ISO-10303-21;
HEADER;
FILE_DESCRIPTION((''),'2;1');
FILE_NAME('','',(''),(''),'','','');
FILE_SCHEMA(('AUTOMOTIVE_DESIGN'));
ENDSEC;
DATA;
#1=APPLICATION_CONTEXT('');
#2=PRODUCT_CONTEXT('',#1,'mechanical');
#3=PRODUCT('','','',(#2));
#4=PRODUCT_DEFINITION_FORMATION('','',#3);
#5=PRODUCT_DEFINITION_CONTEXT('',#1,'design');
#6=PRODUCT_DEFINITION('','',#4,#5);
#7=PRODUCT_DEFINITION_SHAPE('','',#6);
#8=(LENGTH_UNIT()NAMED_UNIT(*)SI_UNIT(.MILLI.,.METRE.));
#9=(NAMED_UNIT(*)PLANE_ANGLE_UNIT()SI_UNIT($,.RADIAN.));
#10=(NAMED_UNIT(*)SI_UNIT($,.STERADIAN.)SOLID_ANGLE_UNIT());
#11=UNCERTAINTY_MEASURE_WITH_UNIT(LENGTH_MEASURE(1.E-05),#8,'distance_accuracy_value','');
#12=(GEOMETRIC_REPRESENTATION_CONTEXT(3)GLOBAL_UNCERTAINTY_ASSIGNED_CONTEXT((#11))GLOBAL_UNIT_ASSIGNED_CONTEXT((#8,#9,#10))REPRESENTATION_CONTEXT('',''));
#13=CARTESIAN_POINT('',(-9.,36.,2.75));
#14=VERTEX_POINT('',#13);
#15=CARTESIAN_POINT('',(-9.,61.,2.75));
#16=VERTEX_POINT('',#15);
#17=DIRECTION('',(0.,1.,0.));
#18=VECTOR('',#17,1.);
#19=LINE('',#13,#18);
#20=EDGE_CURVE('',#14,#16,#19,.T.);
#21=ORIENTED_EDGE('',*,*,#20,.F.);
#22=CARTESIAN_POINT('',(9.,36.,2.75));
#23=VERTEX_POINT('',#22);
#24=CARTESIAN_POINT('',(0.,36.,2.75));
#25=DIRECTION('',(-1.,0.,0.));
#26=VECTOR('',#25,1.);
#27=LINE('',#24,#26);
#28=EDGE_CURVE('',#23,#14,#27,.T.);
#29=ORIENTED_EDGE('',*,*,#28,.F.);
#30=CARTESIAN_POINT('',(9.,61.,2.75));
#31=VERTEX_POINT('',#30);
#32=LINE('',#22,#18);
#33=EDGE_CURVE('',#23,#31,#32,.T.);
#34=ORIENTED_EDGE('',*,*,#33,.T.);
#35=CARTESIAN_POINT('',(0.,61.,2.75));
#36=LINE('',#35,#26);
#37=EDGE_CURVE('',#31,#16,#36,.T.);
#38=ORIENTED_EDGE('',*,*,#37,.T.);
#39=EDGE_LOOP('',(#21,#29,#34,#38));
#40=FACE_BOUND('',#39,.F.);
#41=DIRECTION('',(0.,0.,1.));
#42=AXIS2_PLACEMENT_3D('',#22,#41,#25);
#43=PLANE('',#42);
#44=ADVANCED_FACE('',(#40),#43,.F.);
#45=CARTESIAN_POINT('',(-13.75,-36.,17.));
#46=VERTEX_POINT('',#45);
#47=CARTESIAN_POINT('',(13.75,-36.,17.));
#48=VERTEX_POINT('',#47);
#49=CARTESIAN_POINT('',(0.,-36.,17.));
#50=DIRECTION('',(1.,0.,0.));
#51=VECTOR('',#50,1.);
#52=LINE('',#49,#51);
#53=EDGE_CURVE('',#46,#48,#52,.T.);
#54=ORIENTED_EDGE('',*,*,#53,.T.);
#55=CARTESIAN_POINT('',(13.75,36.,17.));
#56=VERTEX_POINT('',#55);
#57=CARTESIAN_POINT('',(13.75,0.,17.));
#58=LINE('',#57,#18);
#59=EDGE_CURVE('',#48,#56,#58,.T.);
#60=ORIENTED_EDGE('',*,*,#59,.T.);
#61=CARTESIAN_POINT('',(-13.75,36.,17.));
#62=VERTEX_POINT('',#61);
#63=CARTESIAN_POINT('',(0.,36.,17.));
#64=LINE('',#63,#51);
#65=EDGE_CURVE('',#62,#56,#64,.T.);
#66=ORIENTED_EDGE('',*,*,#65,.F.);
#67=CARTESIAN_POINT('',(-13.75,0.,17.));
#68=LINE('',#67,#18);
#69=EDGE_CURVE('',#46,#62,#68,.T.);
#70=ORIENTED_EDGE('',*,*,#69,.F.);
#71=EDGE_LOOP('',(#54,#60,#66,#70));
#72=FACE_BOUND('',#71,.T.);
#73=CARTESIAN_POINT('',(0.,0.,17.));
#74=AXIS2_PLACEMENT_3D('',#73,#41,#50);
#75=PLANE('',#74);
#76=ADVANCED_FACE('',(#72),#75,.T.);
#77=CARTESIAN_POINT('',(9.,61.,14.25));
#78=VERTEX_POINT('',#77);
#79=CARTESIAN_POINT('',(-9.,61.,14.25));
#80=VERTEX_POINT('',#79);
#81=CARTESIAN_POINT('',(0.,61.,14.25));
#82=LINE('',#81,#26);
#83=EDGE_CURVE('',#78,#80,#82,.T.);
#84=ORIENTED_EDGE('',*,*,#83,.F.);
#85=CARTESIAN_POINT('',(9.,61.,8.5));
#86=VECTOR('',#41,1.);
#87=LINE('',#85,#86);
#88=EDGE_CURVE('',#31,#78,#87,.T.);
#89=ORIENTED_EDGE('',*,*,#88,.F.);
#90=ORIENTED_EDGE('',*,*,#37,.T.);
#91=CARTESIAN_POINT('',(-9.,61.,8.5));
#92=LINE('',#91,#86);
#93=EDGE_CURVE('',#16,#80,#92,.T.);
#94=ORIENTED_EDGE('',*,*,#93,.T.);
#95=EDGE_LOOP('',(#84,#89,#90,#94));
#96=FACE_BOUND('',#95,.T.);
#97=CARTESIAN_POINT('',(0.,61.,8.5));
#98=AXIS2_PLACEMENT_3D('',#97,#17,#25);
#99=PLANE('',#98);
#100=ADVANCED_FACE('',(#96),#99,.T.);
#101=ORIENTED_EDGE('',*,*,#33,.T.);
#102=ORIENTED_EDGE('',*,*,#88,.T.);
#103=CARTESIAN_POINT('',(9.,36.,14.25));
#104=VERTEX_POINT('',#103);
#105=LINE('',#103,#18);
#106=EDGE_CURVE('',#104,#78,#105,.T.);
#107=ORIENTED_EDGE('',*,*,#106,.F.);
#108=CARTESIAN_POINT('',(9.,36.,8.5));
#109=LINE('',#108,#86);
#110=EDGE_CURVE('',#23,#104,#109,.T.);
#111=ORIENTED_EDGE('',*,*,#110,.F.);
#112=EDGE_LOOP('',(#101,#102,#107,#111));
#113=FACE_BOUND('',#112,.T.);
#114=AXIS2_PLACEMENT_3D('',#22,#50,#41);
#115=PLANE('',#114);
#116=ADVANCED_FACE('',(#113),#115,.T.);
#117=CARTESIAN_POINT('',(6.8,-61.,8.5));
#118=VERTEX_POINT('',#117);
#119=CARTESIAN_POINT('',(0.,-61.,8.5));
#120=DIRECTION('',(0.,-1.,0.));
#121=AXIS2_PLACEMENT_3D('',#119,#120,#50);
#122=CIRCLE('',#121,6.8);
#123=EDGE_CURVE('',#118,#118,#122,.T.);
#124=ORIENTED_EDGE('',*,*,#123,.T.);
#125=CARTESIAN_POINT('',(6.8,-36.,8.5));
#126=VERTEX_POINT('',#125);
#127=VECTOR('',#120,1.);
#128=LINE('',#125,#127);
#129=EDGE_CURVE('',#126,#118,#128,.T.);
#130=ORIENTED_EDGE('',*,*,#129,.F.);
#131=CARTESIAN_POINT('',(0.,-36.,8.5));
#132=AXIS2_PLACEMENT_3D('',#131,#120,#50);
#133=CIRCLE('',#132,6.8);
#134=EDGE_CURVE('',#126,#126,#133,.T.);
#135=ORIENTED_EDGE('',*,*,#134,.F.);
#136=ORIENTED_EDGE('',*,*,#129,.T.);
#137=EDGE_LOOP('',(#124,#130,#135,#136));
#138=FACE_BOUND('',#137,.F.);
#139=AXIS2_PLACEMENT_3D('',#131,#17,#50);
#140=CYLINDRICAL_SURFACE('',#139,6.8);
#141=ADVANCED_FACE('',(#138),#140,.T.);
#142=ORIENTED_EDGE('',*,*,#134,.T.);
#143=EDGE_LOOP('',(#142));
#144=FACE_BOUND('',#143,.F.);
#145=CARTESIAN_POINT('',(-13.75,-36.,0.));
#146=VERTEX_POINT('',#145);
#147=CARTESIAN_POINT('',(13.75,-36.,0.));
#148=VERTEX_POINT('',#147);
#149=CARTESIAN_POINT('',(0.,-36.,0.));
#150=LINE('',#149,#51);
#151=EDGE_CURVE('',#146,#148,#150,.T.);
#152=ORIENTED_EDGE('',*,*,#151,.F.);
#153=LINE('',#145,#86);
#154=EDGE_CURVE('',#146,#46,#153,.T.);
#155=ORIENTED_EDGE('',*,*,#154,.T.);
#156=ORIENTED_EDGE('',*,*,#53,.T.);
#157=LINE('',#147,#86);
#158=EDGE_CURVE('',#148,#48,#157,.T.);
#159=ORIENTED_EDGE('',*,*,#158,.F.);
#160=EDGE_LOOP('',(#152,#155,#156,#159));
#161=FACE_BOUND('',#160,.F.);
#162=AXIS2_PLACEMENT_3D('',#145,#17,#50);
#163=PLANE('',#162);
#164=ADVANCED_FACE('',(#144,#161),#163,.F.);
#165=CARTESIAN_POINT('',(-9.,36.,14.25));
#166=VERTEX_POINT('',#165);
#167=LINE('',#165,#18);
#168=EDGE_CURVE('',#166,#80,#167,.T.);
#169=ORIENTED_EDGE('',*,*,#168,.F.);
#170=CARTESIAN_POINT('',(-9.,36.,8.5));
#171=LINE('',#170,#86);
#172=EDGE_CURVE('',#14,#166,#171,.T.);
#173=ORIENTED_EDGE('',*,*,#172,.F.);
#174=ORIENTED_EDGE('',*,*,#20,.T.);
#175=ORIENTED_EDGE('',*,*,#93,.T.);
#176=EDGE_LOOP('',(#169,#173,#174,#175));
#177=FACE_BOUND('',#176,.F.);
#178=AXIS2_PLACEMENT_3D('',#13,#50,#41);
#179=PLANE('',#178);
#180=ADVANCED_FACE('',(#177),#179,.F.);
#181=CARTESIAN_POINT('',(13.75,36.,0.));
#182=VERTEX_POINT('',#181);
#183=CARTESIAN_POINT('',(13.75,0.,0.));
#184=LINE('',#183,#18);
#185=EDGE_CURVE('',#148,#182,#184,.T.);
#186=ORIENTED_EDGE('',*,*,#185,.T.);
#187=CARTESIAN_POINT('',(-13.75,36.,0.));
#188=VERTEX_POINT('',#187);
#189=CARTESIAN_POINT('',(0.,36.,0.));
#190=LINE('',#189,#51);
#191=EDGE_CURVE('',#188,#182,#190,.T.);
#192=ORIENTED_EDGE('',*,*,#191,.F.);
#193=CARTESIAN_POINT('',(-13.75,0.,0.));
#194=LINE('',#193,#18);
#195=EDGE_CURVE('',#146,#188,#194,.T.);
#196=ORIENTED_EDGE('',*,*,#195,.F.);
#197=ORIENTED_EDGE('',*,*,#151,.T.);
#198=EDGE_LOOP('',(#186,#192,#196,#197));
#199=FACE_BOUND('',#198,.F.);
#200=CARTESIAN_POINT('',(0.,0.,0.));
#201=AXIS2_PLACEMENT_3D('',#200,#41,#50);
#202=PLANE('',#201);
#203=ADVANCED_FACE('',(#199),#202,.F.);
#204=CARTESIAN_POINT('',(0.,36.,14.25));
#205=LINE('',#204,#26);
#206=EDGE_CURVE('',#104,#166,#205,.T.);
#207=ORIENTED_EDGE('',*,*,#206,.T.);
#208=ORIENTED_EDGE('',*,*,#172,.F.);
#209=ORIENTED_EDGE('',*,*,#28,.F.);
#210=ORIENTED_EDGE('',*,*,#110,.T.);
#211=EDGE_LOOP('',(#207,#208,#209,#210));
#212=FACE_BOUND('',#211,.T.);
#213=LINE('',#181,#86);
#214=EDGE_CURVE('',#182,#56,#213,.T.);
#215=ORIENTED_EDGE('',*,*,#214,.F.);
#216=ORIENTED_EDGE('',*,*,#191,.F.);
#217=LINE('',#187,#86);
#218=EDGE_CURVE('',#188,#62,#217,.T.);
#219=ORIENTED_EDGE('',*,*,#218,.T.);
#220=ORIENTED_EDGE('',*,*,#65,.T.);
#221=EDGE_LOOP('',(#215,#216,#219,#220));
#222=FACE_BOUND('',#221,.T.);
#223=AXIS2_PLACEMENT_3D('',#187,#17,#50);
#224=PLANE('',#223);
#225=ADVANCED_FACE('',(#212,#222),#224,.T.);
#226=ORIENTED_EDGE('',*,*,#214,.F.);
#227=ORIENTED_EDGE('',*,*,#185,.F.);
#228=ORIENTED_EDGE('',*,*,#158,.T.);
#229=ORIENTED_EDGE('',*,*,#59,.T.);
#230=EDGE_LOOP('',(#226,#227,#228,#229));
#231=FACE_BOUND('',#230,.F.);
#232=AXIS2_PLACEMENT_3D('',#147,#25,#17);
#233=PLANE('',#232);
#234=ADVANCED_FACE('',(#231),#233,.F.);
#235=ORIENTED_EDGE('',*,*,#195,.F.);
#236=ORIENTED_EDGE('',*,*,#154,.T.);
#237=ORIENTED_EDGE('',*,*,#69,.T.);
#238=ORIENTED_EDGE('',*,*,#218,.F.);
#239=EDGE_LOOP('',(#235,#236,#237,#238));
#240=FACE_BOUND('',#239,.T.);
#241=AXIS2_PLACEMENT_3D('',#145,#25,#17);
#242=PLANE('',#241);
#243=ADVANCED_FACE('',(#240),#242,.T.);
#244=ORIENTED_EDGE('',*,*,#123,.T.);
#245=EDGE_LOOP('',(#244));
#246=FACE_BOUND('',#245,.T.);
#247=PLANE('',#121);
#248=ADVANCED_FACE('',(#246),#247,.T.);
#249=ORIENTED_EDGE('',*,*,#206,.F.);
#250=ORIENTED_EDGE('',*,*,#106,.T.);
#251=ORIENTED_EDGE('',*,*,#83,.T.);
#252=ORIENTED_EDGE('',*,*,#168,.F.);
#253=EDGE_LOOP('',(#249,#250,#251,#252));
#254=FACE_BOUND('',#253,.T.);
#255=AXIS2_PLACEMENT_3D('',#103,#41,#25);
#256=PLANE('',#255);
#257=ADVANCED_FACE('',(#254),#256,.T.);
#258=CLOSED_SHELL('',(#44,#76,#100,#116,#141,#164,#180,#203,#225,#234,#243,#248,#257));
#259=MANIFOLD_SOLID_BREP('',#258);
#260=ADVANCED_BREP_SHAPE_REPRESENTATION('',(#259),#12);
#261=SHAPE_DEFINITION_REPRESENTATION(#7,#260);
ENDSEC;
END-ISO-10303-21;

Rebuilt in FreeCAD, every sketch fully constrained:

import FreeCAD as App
import Part
import Sketcher

V = App.Vector
Q = App.Units.Quantity

doc = App.newDocument("Part")
body = doc.addObject("PartDesign::Body", "Body")

sketch1 = doc.addObject("Sketcher::SketchObject", "Sketch")
body.addObject(sketch1)
sketch1.AttachmentSupport = (doc.XY_Plane, [""])
sketch1.MapMode = "FlatFace"
sketch1.addGeometry(Part.LineSegment(V(-14, 36, 0), V(-14, -36, 0)), False)
sketch1.addGeometry(Part.LineSegment(V(-14, -36, 0), V(14, -36, 0)), False)
sketch1.addGeometry(Part.LineSegment(V(14, -36, 0), V(14, 36, 0)), False)
sketch1.addGeometry(Part.LineSegment(V(14, 36, 0), V(-14, 36, 0)), False)
sketch1.addConstraint(Sketcher.Constraint("Coincident", 0, 2, 1, 1))
sketch1.addConstraint(Sketcher.Constraint("Coincident", 1, 2, 2, 1))
sketch1.addConstraint(Sketcher.Constraint("Coincident", 2, 2, 3, 1))
sketch1.addConstraint(Sketcher.Constraint("Coincident", 3, 2, 0, 1))
sketch1.addConstraint(Sketcher.Constraint("Vertical", 0))
sketch1.addConstraint(Sketcher.Constraint("Horizontal", 1))
sketch1.addConstraint(Sketcher.Constraint("Vertical", 2))
sketch1.addConstraint(Sketcher.Constraint("Horizontal", 3))
sketch1.addConstraint(Sketcher.Constraint("Symmetric", 0, 2, 2, 2, -1, 1))
sketch1.addConstraint(Sketcher.Constraint("DistanceY", 0, 2, 0, 1, Q("72 mm")))
sketch1.addConstraint(Sketcher.Constraint("DistanceX", 1, 1, 1, 2, Q("27.5 mm")))
pad1 = doc.addObject("PartDesign::Pad", "Pad")
body.addObject(pad1)
pad1.Profile = sketch1
pad1.Length = 17

sketch2 = doc.addObject("Sketcher::SketchObject", "Sketch001")
body.addObject(sketch2)
sketch2.AttachmentSupport = (doc.XZ_Plane, [""])
sketch2.MapMode = "FlatFace"
sketch2.AttachmentOffset = App.Placement(V(0, 0, -36), App.Rotation())
sketch2.addGeometry(Part.LineSegment(V(9, 14, 0), V(9, 3, 0)), False)
sketch2.addGeometry(Part.LineSegment(V(9, 3, 0), V(-9, 3, 0)), False)
sketch2.addGeometry(Part.LineSegment(V(-9, 3, 0), V(-9, 14, 0)), False)
sketch2.addGeometry(Part.LineSegment(V(-9, 14, 0), V(9, 14, 0)), False)
sketch2.addConstraint(Sketcher.Constraint("Coincident", 0, 2, 1, 1))
sketch2.addConstraint(Sketcher.Constraint("Coincident", 1, 2, 2, 1))
sketch2.addConstraint(Sketcher.Constraint("Coincident", 2, 2, 3, 1))
sketch2.addConstraint(Sketcher.Constraint("Coincident", 3, 2, 0, 1))
sketch2.addConstraint(Sketcher.Constraint("Vertical", 0))
sketch2.addConstraint(Sketcher.Constraint("Horizontal", 1))
sketch2.addConstraint(Sketcher.Constraint("Vertical", 2))
sketch2.addConstraint(Sketcher.Constraint("Horizontal", 3))
sketch2.addConstraint(Sketcher.Constraint("DistanceX", 1, 2, 1, 1, Q("18 mm")))
sketch2.addConstraint(Sketcher.Constraint("DistanceY", 0, 2, 0, 1, Q("11.5 mm")))
sketch2.addConstraint(Sketcher.Constraint("DistanceX", -1, 1, 0, 2, Q("9 mm")))
sketch2.addConstraint(Sketcher.Constraint("DistanceY", -1, 1, 0, 2, Q("2.75 mm")))
pad2 = doc.addObject("PartDesign::Pad", "Pad001")
body.addObject(pad2)
pad2.Profile = sketch2
pad2.Length = 25
pad2.Reversed = True

sketch3 = doc.addObject("Sketcher::SketchObject", "Sketch002")
body.addObject(sketch3)
sketch3.AttachmentSupport = (doc.XZ_Plane, [""])
sketch3.MapMode = "FlatFace"
sketch3.AttachmentOffset = App.Placement(V(0, 0, 36), App.Rotation())
sketch3.addGeometry(Part.Circle(V(0, 8, 0), V(0, 0, 1), 7), False)
sketch3.addConstraint(Sketcher.Constraint("PointOnObject", 0, 3, -2))
sketch3.addConstraint(Sketcher.Constraint("Diameter", 0, Q("13.6 mm")))
sketch3.addConstraint(Sketcher.Constraint("DistanceY", -1, 1, 0, 3, Q("8.5 mm")))
pad3 = doc.addObject("PartDesign::Pad", "Pad002")
body.addObject(pad3)
pad3.Profile = sketch3
pad3.Length = 25

doc.recompute()
